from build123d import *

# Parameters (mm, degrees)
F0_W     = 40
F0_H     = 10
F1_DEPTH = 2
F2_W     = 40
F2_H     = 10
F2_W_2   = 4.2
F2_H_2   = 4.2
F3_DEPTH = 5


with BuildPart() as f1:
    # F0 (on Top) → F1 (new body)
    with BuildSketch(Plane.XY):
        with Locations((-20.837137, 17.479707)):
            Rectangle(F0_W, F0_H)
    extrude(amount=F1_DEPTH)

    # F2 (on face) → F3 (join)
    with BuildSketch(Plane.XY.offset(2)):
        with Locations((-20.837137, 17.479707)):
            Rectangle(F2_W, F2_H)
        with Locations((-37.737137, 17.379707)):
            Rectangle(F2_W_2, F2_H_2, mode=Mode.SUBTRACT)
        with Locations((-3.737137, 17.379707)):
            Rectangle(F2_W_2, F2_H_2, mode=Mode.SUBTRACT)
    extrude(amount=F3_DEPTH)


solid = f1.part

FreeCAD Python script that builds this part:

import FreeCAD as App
import Part
import Sketcher

V = App.Vector
Q = App.Units.Quantity


def add_polygon(sketch, points):
    """Adds a closed chain of lines whose ends are joined by coincident constraints."""
    first, n = sketch.GeometryCount, len(points)
    for a, b in zip(points, points[1:] + points[:1]):
        sketch.addGeometry(Part.LineSegment(App.Vector(*a, 0), App.Vector(*b, 0)), False)
    for i in range(n):
        sketch.addConstraint(Sketcher.Constraint("Coincident", first + i, 2, first + (i + 1) % n, 1))

doc = App.newDocument("Part")
body = doc.addObject("PartDesign::Body", "Body")

# Sketch on XY plane
sketch1 = body.newObject("Sketcher::SketchObject", "Sketch")
sketch1.AttachmentSupport = (doc.getObject("XY_Plane"), [""])
sketch1.MapMode = "FlatFace"
add_polygon(sketch1, [(-41, 22), (-41, 12), (-1, 12), (-1, 22)])  # lines 0-3
sketch1.addConstraint(Sketcher.Constraint("Vertical", 0))
sketch1.addConstraint(Sketcher.Constraint("Horizontal", 1))
sketch1.addConstraint(Sketcher.Constraint("Vertical", 2))
sketch1.addConstraint(Sketcher.Constraint("Horizontal", 3))
sketch1.addConstraint(Sketcher.Constraint("DistanceX", 1, 1, 1, 2, Q("40 mm")))
sketch1.addConstraint(Sketcher.Constraint("DistanceY", 0, 2, 0, 1, Q("10 mm")))
sketch1.addConstraint(Sketcher.Constraint("DistanceX", 0, 2, -1, 1, Q("40.837137 mm")))
sketch1.addConstraint(Sketcher.Constraint("DistanceY", -1, 1, 0, 2, Q("12.479707 mm")))
pad1 = body.newObject("PartDesign::Pad", "Pad")
pad1.Profile = sketch1
pad1.Length = 2

# Sketch on XY plane
sketch2 = body.newObject("Sketcher::SketchObject", "Sketch001")
sketch2.AttachmentSupport = (doc.getObject("XY_Plane"), [""])
sketch2.MapMode = "FlatFace"
sketch2.AttachmentOffset = App.Placement(V(0, 0, 2), App.Rotation())
add_polygon(sketch2, [(-40.8, 22.5), (-40.8, 12.5), (-0.8, 12.5), (-0.8, 22.5)])  # lines 0-3
add_polygon(sketch2, [(-35.6, 15.3), (-39.8, 15.3), (-39.8, 19.5), (-35.6, 19.5)])  # lines 4-7
add_polygon(sketch2, [(-1.6, 15.3), (-5.8, 15.3), (-5.8, 19.5), (-1.6, 19.5)])  # lines 8-11
sketch2.addConstraint(Sketcher.Constraint("Vertical", 0))
sketch2.addConstraint(Sketcher.Constraint("Horizontal", 1))
sketch2.addConstraint(Sketcher.Constraint("Vertical", 2))
sketch2.addConstraint(Sketcher.Constraint("Horizontal", 3))
sketch2.addConstraint(Sketcher.Constraint("Horizontal", 4))
sketch2.addConstraint(Sketcher.Constraint("Vertical", 5))
sketch2.addConstraint(Sketcher.Constraint("Horizontal", 6))
sketch2.addConstraint(Sketcher.Constraint("Vertical", 7))
sketch2.addConstraint(Sketcher.Constraint("Horizontal", 8))
sketch2.addConstraint(Sketcher.Constraint("Vertical", 9))
sketch2.addConstraint(Sketcher.Constraint("Horizontal", 10))
sketch2.addConstraint(Sketcher.Constraint("Vertical", 11))
sketch2.addConstraint(Sketcher.Constraint("Horizontal", 7, 2, 8, 2))
sketch2.addConstraint(Sketcher.Constraint("Horizontal", 6, 2, 9, 2))
sketch2.addConstraint(Sketcher.Constraint("Equal", 6, 8))
sketch2.addConstraint(Sketcher.Constraint("Equal", 10, 5))
sketch2.addConstraint(Sketcher.Constraint("DistanceX", 1, 1, 1, 2, Q("40 mm")))
sketch2.addConstraint(Sketcher.Constraint("DistanceY", 0, 2, 0, 1, Q("10 mm")))
sketch2.addConstraint(Sketcher.Constraint("DistanceX", 4, 2, 4, 1, Q("4.2 mm")))
sketch2.addConstraint(Sketcher.Constraint("DistanceX", 0, 2, 4, 2, Q("1 mm")))
sketch2.addConstraint(Sketcher.Constraint("DistanceY", 5, 2, 3, 2, Q("3 mm")))
sketch2.addConstraint(Sketcher.Constraint("DistanceX", 8, 2, 1, 2, Q("5 mm")))
sketch2.addConstraint(Sketcher.Constraint("DistanceX", 0, 2, -1, 1, Q("40.837137 mm")))
sketch2.addConstraint(Sketcher.Constraint("DistanceY", -1, 1, 0, 2, Q("12.479707 mm")))
pad2 = body.newObject("PartDesign::Pad", "Pad001")
pad2.Profile = sketch2
pad2.Length = 5

doc.recompute()
